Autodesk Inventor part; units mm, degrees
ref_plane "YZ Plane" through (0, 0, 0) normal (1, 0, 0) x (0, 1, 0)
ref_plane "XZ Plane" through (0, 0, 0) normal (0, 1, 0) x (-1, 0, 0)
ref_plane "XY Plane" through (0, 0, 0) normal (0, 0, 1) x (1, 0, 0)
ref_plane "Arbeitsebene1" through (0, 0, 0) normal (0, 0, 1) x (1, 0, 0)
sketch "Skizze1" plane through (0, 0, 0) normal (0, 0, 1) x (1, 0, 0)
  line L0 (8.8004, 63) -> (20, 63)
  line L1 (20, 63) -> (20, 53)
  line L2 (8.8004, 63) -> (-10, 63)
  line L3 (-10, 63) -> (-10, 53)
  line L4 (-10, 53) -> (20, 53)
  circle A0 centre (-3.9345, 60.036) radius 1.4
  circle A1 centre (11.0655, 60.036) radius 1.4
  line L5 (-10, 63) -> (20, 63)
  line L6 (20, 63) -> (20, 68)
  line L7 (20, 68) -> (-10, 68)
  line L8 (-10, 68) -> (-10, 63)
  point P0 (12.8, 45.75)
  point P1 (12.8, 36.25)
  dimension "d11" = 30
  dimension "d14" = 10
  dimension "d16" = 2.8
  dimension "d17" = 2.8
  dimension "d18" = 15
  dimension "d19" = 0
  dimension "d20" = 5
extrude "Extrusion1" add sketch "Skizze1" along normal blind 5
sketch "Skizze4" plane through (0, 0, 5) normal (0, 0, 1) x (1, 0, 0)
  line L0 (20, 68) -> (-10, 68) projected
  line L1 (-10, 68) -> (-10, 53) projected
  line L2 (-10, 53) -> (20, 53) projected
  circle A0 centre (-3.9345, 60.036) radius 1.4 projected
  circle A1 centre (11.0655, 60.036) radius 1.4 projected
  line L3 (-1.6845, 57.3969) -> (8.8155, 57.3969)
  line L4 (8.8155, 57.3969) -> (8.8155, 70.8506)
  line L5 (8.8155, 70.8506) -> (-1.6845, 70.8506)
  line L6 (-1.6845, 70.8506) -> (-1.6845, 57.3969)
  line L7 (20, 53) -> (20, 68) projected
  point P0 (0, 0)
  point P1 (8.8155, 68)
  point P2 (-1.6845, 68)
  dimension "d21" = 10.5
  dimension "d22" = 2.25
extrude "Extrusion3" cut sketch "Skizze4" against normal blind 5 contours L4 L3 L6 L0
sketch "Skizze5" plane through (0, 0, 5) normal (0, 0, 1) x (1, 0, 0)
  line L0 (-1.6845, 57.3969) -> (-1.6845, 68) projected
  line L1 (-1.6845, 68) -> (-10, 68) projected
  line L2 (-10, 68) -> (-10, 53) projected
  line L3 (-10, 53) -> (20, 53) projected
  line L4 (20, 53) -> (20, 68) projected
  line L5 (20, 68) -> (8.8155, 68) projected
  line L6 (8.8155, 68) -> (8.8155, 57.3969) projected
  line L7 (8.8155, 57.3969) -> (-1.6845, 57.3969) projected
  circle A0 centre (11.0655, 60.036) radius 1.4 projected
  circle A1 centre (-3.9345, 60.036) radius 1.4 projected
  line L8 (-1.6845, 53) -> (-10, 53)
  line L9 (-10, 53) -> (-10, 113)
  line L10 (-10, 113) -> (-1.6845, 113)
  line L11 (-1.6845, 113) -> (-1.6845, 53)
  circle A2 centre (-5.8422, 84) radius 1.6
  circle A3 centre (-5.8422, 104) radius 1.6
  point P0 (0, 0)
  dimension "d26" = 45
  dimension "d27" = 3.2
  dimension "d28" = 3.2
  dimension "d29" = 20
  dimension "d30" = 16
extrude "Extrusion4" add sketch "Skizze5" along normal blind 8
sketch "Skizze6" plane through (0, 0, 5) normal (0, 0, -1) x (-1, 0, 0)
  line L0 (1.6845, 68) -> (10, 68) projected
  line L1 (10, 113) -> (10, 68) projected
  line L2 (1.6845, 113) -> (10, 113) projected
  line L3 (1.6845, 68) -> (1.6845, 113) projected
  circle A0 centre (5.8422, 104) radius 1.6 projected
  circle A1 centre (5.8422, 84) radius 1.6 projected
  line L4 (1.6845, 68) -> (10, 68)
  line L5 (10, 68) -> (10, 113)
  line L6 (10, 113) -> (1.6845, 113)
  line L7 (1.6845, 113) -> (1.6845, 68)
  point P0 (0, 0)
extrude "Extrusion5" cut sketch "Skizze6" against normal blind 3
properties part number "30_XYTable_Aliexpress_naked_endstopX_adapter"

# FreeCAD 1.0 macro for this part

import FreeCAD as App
import Part
import Sketcher

V = App.Vector

doc = App.newDocument("Part")
params = doc.addObject("Spreadsheet::Sheet", "Params")
for row, (alias, value) in enumerate([
    ("sketch1_diameter", "2.8 mm"),
    ("sketch1_width", "30 mm"),
    ("sketch1_height", "15 mm"),
    ("pad1_length", "5 mm"),
    ("sketch2_width", "10.5 mm"),
    ("pocket1_length", "5 mm"),
    ("sketch3_diameter", "3.2 mm"),
    ("sketch3_diameter2", "2.8 mm"),
    ("sketch3_width", "30 mm"),
    ("sketch3_height", "15 mm"),
    ("sketch3_width2", "10.5 mm"),
    ("pad2_length", "8 mm"),
    ("sketch4_diameter", "3.2 mm"),
    ("sketch4_height", "45 mm"),
    ("pocket2_length", "3 mm"),
], start=1):
    params.set(f"A{row}", alias)
    params.set(f"B{row}", "=" + value)
    params.setAlias(f"B{row}", alias)

body = doc.addObject("PartDesign::Body", "Body")

# Sketch on XY plane
sketch1 = doc.addObject("Sketcher::SketchObject", "Sketch")
body.addObject(sketch1)
sketch1.AttachmentSupport = (doc.XY_Plane, [""])
sketch1.MapMode = "FlatFace"
sketch1.addGeometry(Part.LineSegment(V(-10, 68, 0), V(-10, 53, 0)), False)
sketch1.addGeometry(Part.LineSegment(V(-10, 53, 0), V(20, 53, 0)), False)
sketch1.addGeometry(Part.LineSegment(V(20, 53, 0), V(20, 68, 0)), False)
sketch1.addGeometry(Part.LineSegment(V(20, 68, 0), V(-10, 68, 0)), False)
sketch1.addGeometry(Part.Circle(V(-3.9, 60, 0), V(0, 0, 1), 1.4), False)
sketch1.addGeometry(Part.Circle(V(11.1, 60, 0), V(0, 0, 1), 1.4), False)
sketch1.addConstraint(Sketcher.Constraint("Coincident", 0, 2, 1, 1))
sketch1.addConstraint(Sketcher.Constraint("Coincident", 1, 2, 2, 1))
sketch1.addConstraint(Sketcher.Constraint("Coincident", 2, 2, 3, 1))
sketch1.addConstraint(Sketcher.Constraint("Coincident", 3, 2, 0, 1))
sketch1.addConstraint(Sketcher.Constraint("Vertical", 0))
sketch1.addConstraint(Sketcher.Constraint("Horizontal", 1))
sketch1.addConstraint(Sketcher.Constraint("Vertical", 2))
sketch1.addConstraint(Sketcher.Constraint("Horizontal", 3))
sketch1.addConstraint(Sketcher.Constraint("Equal", 4, 5))
sketch1.addConstraint(Sketcher.Constraint("Horizontal", 4, 3, 5, 3))
sketch1.addConstraint(Sketcher.Constraint("Diameter", 4, 2.8))
sketch1.addConstraint(Sketcher.Constraint("DistanceX", 1, 1, 1, 2, 30.0))
sketch1.addConstraint(Sketcher.Constraint("DistanceY", 0, 2, 0, 1, 15.0))
sketch1.addConstraint(Sketcher.Constraint("DistanceX", 0, 2, -1, 1, 10.0))
sketch1.addConstraint(Sketcher.Constraint("DistanceX", 4, 3, 5, 3, 15.0))
sketch1.addConstraint(Sketcher.Constraint("DistanceY", -1, 1, 0, 2, 53.0))
sketch1.addConstraint(Sketcher.Constraint("DistanceY", -1, 1, 4, 3, 60.036))
sketch1.addConstraint(Sketcher.Constraint("DistanceX", 4, 3, -1, 1, 3.9345))
sketch1.setExpression("Constraints[10]", "Params.sketch1_diameter")
sketch1.setExpression("Constraints[11]", "Params.sketch1_width")
sketch1.setExpression("Constraints[12]", "Params.sketch1_height")
pad1 = doc.addObject("PartDesign::Pad", "Pad")
body.addObject(pad1)
pad1.Profile = sketch1
pad1.setExpression("Length", "Params.pad1_length")

# Sketch on XY plane
sketch2 = doc.addObject("Sketcher::SketchObject", "Sketch001")
body.addObject(sketch2)
sketch2.AttachmentSupport = (doc.XY_Plane, [""])
sketch2.MapMode = "FlatFace"
sketch2.AttachmentOffset = App.Placement(V(0, 0, 5), App.Rotation())
sketch2.addGeometry(Part.LineSegment(V(9, 57, 0), V(9, 68, 0)), False)
sketch2.addGeometry(Part.LineSegment(V(9, 68, 0), V(-2, 68, 0)), False)
sketch2.addGeometry(Part.LineSegment(V(-2, 68, 0), V(-2, 57, 0)), False)
sketch2.addGeometry(Part.LineSegment(V(-2, 57, 0), V(9, 57, 0)), False)
sketch2.addConstraint(Sketcher.Constraint("Coincident", 0, 2, 1, 1))
sketch2.addConstraint(Sketcher.Constraint("Coincident", 1, 2, 2, 1))
sketch2.addConstraint(Sketcher.Constraint("Coincident", 2, 2, 3, 1))
sketch2.addConstraint(Sketcher.Constraint("Coincident", 3, 2, 0, 1))
sketch2.addConstraint(Sketcher.Constraint("Vertical", 0))
sketch2.addConstraint(Sketcher.Constraint("Horizontal", 1))
sketch2.addConstraint(Sketcher.Constraint("Vertical", 2))
sketch2.addConstraint(Sketcher.Constraint("Horizontal", 3))
sketch2.addConstraint(Sketcher.Constraint("DistanceX", 1, 2, 1, 1, 10.5))
sketch2.addConstraint(Sketcher.Constraint("DistanceY", -1, 1, 0, 2, 68.0))
sketch2.addConstraint(Sketcher.Constraint("DistanceY", 0, 1, 0, 2, 10.603))
sketch2.addConstraint(Sketcher.Constraint("DistanceX", -1, 1, 0, 2, 8.8155))
sketch2.setExpression("Constraints[8]", "Params.sketch2_width")
pocket1 = doc.addObject("PartDesign::Pocket", "Pocket")
body.addObject(pocket1)
pocket1.Profile = sketch2
pocket1.setExpression("Length", "Params.pocket1_length")

# Sketch on XY plane
sketch3 = doc.addObject("Sketcher::SketchObject", "Sketch002")
body.addObject(sketch3)
sketch3.AttachmentSupport = (doc.XY_Plane, [""])
sketch3.MapMode = "FlatFace"
sketch3.AttachmentOffset = App.Placement(V(0, 0, 5), App.Rotation())
sketch3.addGeometry(Part.LineSegment(V(-10, 53, 0), V(20, 53, 0)), False)
sketch3.addGeometry(Part.LineSegment(V(20, 53, 0), V(20, 68, 0)), False)
sketch3.addGeometry(Part.LineSegment(V(20, 68, 0), V(8.8, 68, 0)), False)
sketch3.addGeometry(Part.LineSegment(V(8.8, 68, 0), V(8.8, 57.4, 0)), False)
sketch3.addGeometry(Part.LineSegment(V(8.8, 57.4, 0), V(-1.7, 57.4, 0)), False)
sketch3.addGeometry(Part.LineSegment(V(-1.7, 57.4, 0), V(-1.7, 113, 0)), False)
sketch3.addGeometry(Part.LineSegment(V(-1.7, 113, 0), V(-10, 113, 0)), False)
sketch3.addGeometry(Part.LineSegment(V(-10, 113, 0), V(-10, 53, 0)), False)
sketch3.addGeometry(Part.Circle(V(-3.9, 60, 0), V(0, 0, 1), 1.4), False)
sketch3.addGeometry(Part.Circle(V(11.1, 60, 0), V(0, 0, 1), 1.4), False)
sketch3.addGeometry(Part.Circle(V(-5.8, 104, 0), V(0, 0, 1), 1.6), False)
sketch3.addGeometry(Part.Circle(V(-5.8, 84, 0), V(0, 0, 1), 1.6), False)
sketch3.addConstraint(Sketcher.Constraint("Coincident", 0, 2, 1, 1))
sketch3.addConstraint(Sketcher.Constraint("Coincident", 1, 2, 2, 1))
sketch3.addConstraint(Sketcher.Constraint("Coincident", 2, 2, 3, 1))
sketch3.addConstraint(Sketcher.Constraint("Coincident", 3, 2, 4, 1))
sketch3.addConstraint(Sketcher.Constraint("Coincident", 4, 2, 5, 1))
sketch3.addConstraint(Sketcher.Constraint("Coincident", 5, 2, 6, 1))
sketch3.addConstraint(Sketcher.Constraint("Coincident", 6, 2, 7, 1))
sketch3.addConstraint(Sketcher.Constraint("Coincident", 7, 2, 0, 1))
sketch3.addConstraint(Sketcher.Constraint("Horizontal", 0))
sketch3.addConstraint(Sketcher.Constraint("Vertical", 1))
sketch3.addConstraint(Sketcher.Constraint("Horizontal", 2))
sketch3.addConstraint(Sketcher.Constraint("Vertical", 3))
sketch3.addConstraint(Sketcher.Constraint("Horizontal", 4))
sketch3.addConstraint(Sketcher.Constraint("Vertical", 5))
sketch3.addConstraint(Sketcher.Constraint("Horizontal", 6))
sketch3.addConstraint(Sketcher.Constraint("Vertical", 7))
sketch3.addConstraint(Sketcher.Constraint("Equal", 8, 9))
sketch3.addConstraint(Sketcher.Constraint("Equal", 10, 11))
sketch3.addConstraint(Sketcher.Constraint("Horizontal", 8, 3, 9, 3))
sketch3.addConstraint(Sketcher.Constraint("Vertical", 10, 3, 11, 3))
sketch3.addConstraint(Sketcher.Constraint("Diameter", 10, 3.2))
sketch3.addConstraint(Sketcher.Constraint("DistanceX", -1, 1, 0, 2, 20.0))
sketch3.addConstraint(Sketcher.Constraint("DistanceY", 11, 3, 10, 3, 20.0))
sketch3.addConstraint(Sketcher.Constraint("DistanceY", 1, 2, 11, 3, 16.0))
sketch3.addConstraint(Sketcher.Constraint("DistanceY", 2, 2, 5, 2, 45.0))
sketch3.addConstraint(Sketcher.Constraint("Diameter", 8, 2.8))
sketch3.addConstraint(Sketcher.Constraint("DistanceX", 0, 1, 0, 2, 30.0))
sketch3.addConstraint(Sketcher.Constraint("DistanceY", 1, 1, 1, 2, 15.0))
sketch3.addConstraint(Sketcher.Constraint("DistanceX", 4, 2, 4, 1, 10.5))
sketch3.addConstraint(Sketcher.Constraint("DistanceY", -1, 1, 10, 3, 104.0))
sketch3.addConstraint(Sketcher.Constraint("DistanceX", 8, 3, 9, 3, 15.0))
sketch3.addConstraint(Sketcher.Constraint("DistanceY", 3, 2, 3, 1, 10.603))
sketch3.addConstraint(Sketcher.Constraint("DistanceX", 2, 2, 9, 3, 2.25))
sketch3.addConstraint(Sketcher.Constraint("DistanceX", 2, 2, 2, 1, 11.1845))
sketch3.addConstraint(Sketcher.Constraint("DistanceY", -1, 1, 8, 3, 60.036))
sketch3.addConstraint(Sketcher.Constraint("DistanceX", 10, 3, -1, 1, 5.8422))
sketch3.setExpression("Constraints[20]", "Params.sketch3_diameter")
sketch3.setExpression("Constraints[25]", "Params.sketch3_diameter2")
sketch3.setExpression("Constraints[26]", "Params.sketch3_width")
sketch3.setExpression("Constraints[27]", "Params.sketch3_height")
sketch3.setExpression("Constraints[28]", "Params.sketch3_width2")
pad2 = doc.addObject("PartDesign::Pad", "Pad001")
body.addObject(pad2)
pad2.Profile = sketch3
pad2.setExpression("Length", "Params.pad2_length")

# Sketch on XY plane
sketch4 = doc.addObject("Sketcher::SketchObject", "Sketch003")
body.addObject(sketch4)
sketch4.AttachmentSupport = (doc.XY_Plane, [""])
sketch4.MapMode = "FlatFace"
sketch4.AttachmentOffset = App.Placement(V(0, 0, 5), App.Rotation())
sketch4.addGeometry(Part.LineSegment(V(-1.7, 113, 0), V(-1.7, 68, 0)), False)
sketch4.addGeometry(Part.LineSegment(V(-1.7, 68, 0), V(-10, 68, 0)), False)
sketch4.addGeometry(Part.LineSegment(V(-10, 68, 0), V(-10, 113, 0)), False)
sketch4.addGeometry(Part.LineSegment(V(-10, 113, 0), V(-1.7, 113, 0)), False)
sketch4.addGeometry(Part.Circle(V(-5.8, 84, 0), V(0, 0, 1), 1.6), False)
sketch4.addGeometry(Part.Circle(V(-5.8, 104, 0), V(0, 0, 1), 1.6), False)
sketch4.addConstraint(Sketcher.Constraint("Coincident", 0, 2, 1, 1))
sketch4.addConstraint(Sketcher.Constraint("Coincident", 1, 2, 2, 1))
sketch4.addConstraint(Sketcher.Constraint("Coincident", 2, 2, 3, 1))
sketch4.addConstraint(Sketcher.Constraint("Coincident", 3, 2, 0, 1))
sketch4.addConstraint(Sketcher.Constraint("Vertical", 0))
sketch4.addConstraint(Sketcher.Constraint("Horizontal", 1))
sketch4.addConstraint(Sketcher.Constraint("Vertical", 2))
sketch4.addConstraint(Sketcher.Constraint("Horizontal", 3))
sketch4.addConstraint(Sketcher.Constraint("Equal", 4, 5))
sketch4.addConstraint(Sketcher.Constraint("Vertical", 4, 3, 5, 3))
sketch4.addConstraint(Sketcher.Constraint("Diameter", 4, 3.2))
sketch4.addConstraint(Sketcher.Constraint("DistanceY", 0, 2, 0, 1, 45.0))
sketch4.addConstraint(Sketcher.Constraint("DistanceY", -1, 1, 4, 3, 84.0))
sketch4.addConstraint(Sketcher.Constraint("DistanceY", -1, 1, 5, 3, 104.0))
sketch4.addConstraint(Sketcher.Constraint("DistanceY", -1, 1, 0, 2, 68.0))
sketch4.addConstraint(Sketcher.Constraint("DistanceX", 1, 2, -1, 1, 10.0))
sketch4.addConstraint(Sketcher.Constraint("DistanceX", 1, 2, 1, 1, 8.3155))
sketch4.addConstraint(Sketcher.Constraint("DistanceX", 4, 3, -1, 1, 5.8422))
sketch4.setExpression("Constraints[10]", "Params.sketch4_diameter")
sketch4.setExpression("Constraints[11]", "Params.sketch4_height")
pocket2 = doc.addObject("PartDesign::Pocket", "Pocket001")
body.addObject(pocket2)
pocket2.Profile = sketch4
pocket2.setExpression("Length", "Params.pocket2_length")
pocket2.Reversed = True

doc.recompute()
